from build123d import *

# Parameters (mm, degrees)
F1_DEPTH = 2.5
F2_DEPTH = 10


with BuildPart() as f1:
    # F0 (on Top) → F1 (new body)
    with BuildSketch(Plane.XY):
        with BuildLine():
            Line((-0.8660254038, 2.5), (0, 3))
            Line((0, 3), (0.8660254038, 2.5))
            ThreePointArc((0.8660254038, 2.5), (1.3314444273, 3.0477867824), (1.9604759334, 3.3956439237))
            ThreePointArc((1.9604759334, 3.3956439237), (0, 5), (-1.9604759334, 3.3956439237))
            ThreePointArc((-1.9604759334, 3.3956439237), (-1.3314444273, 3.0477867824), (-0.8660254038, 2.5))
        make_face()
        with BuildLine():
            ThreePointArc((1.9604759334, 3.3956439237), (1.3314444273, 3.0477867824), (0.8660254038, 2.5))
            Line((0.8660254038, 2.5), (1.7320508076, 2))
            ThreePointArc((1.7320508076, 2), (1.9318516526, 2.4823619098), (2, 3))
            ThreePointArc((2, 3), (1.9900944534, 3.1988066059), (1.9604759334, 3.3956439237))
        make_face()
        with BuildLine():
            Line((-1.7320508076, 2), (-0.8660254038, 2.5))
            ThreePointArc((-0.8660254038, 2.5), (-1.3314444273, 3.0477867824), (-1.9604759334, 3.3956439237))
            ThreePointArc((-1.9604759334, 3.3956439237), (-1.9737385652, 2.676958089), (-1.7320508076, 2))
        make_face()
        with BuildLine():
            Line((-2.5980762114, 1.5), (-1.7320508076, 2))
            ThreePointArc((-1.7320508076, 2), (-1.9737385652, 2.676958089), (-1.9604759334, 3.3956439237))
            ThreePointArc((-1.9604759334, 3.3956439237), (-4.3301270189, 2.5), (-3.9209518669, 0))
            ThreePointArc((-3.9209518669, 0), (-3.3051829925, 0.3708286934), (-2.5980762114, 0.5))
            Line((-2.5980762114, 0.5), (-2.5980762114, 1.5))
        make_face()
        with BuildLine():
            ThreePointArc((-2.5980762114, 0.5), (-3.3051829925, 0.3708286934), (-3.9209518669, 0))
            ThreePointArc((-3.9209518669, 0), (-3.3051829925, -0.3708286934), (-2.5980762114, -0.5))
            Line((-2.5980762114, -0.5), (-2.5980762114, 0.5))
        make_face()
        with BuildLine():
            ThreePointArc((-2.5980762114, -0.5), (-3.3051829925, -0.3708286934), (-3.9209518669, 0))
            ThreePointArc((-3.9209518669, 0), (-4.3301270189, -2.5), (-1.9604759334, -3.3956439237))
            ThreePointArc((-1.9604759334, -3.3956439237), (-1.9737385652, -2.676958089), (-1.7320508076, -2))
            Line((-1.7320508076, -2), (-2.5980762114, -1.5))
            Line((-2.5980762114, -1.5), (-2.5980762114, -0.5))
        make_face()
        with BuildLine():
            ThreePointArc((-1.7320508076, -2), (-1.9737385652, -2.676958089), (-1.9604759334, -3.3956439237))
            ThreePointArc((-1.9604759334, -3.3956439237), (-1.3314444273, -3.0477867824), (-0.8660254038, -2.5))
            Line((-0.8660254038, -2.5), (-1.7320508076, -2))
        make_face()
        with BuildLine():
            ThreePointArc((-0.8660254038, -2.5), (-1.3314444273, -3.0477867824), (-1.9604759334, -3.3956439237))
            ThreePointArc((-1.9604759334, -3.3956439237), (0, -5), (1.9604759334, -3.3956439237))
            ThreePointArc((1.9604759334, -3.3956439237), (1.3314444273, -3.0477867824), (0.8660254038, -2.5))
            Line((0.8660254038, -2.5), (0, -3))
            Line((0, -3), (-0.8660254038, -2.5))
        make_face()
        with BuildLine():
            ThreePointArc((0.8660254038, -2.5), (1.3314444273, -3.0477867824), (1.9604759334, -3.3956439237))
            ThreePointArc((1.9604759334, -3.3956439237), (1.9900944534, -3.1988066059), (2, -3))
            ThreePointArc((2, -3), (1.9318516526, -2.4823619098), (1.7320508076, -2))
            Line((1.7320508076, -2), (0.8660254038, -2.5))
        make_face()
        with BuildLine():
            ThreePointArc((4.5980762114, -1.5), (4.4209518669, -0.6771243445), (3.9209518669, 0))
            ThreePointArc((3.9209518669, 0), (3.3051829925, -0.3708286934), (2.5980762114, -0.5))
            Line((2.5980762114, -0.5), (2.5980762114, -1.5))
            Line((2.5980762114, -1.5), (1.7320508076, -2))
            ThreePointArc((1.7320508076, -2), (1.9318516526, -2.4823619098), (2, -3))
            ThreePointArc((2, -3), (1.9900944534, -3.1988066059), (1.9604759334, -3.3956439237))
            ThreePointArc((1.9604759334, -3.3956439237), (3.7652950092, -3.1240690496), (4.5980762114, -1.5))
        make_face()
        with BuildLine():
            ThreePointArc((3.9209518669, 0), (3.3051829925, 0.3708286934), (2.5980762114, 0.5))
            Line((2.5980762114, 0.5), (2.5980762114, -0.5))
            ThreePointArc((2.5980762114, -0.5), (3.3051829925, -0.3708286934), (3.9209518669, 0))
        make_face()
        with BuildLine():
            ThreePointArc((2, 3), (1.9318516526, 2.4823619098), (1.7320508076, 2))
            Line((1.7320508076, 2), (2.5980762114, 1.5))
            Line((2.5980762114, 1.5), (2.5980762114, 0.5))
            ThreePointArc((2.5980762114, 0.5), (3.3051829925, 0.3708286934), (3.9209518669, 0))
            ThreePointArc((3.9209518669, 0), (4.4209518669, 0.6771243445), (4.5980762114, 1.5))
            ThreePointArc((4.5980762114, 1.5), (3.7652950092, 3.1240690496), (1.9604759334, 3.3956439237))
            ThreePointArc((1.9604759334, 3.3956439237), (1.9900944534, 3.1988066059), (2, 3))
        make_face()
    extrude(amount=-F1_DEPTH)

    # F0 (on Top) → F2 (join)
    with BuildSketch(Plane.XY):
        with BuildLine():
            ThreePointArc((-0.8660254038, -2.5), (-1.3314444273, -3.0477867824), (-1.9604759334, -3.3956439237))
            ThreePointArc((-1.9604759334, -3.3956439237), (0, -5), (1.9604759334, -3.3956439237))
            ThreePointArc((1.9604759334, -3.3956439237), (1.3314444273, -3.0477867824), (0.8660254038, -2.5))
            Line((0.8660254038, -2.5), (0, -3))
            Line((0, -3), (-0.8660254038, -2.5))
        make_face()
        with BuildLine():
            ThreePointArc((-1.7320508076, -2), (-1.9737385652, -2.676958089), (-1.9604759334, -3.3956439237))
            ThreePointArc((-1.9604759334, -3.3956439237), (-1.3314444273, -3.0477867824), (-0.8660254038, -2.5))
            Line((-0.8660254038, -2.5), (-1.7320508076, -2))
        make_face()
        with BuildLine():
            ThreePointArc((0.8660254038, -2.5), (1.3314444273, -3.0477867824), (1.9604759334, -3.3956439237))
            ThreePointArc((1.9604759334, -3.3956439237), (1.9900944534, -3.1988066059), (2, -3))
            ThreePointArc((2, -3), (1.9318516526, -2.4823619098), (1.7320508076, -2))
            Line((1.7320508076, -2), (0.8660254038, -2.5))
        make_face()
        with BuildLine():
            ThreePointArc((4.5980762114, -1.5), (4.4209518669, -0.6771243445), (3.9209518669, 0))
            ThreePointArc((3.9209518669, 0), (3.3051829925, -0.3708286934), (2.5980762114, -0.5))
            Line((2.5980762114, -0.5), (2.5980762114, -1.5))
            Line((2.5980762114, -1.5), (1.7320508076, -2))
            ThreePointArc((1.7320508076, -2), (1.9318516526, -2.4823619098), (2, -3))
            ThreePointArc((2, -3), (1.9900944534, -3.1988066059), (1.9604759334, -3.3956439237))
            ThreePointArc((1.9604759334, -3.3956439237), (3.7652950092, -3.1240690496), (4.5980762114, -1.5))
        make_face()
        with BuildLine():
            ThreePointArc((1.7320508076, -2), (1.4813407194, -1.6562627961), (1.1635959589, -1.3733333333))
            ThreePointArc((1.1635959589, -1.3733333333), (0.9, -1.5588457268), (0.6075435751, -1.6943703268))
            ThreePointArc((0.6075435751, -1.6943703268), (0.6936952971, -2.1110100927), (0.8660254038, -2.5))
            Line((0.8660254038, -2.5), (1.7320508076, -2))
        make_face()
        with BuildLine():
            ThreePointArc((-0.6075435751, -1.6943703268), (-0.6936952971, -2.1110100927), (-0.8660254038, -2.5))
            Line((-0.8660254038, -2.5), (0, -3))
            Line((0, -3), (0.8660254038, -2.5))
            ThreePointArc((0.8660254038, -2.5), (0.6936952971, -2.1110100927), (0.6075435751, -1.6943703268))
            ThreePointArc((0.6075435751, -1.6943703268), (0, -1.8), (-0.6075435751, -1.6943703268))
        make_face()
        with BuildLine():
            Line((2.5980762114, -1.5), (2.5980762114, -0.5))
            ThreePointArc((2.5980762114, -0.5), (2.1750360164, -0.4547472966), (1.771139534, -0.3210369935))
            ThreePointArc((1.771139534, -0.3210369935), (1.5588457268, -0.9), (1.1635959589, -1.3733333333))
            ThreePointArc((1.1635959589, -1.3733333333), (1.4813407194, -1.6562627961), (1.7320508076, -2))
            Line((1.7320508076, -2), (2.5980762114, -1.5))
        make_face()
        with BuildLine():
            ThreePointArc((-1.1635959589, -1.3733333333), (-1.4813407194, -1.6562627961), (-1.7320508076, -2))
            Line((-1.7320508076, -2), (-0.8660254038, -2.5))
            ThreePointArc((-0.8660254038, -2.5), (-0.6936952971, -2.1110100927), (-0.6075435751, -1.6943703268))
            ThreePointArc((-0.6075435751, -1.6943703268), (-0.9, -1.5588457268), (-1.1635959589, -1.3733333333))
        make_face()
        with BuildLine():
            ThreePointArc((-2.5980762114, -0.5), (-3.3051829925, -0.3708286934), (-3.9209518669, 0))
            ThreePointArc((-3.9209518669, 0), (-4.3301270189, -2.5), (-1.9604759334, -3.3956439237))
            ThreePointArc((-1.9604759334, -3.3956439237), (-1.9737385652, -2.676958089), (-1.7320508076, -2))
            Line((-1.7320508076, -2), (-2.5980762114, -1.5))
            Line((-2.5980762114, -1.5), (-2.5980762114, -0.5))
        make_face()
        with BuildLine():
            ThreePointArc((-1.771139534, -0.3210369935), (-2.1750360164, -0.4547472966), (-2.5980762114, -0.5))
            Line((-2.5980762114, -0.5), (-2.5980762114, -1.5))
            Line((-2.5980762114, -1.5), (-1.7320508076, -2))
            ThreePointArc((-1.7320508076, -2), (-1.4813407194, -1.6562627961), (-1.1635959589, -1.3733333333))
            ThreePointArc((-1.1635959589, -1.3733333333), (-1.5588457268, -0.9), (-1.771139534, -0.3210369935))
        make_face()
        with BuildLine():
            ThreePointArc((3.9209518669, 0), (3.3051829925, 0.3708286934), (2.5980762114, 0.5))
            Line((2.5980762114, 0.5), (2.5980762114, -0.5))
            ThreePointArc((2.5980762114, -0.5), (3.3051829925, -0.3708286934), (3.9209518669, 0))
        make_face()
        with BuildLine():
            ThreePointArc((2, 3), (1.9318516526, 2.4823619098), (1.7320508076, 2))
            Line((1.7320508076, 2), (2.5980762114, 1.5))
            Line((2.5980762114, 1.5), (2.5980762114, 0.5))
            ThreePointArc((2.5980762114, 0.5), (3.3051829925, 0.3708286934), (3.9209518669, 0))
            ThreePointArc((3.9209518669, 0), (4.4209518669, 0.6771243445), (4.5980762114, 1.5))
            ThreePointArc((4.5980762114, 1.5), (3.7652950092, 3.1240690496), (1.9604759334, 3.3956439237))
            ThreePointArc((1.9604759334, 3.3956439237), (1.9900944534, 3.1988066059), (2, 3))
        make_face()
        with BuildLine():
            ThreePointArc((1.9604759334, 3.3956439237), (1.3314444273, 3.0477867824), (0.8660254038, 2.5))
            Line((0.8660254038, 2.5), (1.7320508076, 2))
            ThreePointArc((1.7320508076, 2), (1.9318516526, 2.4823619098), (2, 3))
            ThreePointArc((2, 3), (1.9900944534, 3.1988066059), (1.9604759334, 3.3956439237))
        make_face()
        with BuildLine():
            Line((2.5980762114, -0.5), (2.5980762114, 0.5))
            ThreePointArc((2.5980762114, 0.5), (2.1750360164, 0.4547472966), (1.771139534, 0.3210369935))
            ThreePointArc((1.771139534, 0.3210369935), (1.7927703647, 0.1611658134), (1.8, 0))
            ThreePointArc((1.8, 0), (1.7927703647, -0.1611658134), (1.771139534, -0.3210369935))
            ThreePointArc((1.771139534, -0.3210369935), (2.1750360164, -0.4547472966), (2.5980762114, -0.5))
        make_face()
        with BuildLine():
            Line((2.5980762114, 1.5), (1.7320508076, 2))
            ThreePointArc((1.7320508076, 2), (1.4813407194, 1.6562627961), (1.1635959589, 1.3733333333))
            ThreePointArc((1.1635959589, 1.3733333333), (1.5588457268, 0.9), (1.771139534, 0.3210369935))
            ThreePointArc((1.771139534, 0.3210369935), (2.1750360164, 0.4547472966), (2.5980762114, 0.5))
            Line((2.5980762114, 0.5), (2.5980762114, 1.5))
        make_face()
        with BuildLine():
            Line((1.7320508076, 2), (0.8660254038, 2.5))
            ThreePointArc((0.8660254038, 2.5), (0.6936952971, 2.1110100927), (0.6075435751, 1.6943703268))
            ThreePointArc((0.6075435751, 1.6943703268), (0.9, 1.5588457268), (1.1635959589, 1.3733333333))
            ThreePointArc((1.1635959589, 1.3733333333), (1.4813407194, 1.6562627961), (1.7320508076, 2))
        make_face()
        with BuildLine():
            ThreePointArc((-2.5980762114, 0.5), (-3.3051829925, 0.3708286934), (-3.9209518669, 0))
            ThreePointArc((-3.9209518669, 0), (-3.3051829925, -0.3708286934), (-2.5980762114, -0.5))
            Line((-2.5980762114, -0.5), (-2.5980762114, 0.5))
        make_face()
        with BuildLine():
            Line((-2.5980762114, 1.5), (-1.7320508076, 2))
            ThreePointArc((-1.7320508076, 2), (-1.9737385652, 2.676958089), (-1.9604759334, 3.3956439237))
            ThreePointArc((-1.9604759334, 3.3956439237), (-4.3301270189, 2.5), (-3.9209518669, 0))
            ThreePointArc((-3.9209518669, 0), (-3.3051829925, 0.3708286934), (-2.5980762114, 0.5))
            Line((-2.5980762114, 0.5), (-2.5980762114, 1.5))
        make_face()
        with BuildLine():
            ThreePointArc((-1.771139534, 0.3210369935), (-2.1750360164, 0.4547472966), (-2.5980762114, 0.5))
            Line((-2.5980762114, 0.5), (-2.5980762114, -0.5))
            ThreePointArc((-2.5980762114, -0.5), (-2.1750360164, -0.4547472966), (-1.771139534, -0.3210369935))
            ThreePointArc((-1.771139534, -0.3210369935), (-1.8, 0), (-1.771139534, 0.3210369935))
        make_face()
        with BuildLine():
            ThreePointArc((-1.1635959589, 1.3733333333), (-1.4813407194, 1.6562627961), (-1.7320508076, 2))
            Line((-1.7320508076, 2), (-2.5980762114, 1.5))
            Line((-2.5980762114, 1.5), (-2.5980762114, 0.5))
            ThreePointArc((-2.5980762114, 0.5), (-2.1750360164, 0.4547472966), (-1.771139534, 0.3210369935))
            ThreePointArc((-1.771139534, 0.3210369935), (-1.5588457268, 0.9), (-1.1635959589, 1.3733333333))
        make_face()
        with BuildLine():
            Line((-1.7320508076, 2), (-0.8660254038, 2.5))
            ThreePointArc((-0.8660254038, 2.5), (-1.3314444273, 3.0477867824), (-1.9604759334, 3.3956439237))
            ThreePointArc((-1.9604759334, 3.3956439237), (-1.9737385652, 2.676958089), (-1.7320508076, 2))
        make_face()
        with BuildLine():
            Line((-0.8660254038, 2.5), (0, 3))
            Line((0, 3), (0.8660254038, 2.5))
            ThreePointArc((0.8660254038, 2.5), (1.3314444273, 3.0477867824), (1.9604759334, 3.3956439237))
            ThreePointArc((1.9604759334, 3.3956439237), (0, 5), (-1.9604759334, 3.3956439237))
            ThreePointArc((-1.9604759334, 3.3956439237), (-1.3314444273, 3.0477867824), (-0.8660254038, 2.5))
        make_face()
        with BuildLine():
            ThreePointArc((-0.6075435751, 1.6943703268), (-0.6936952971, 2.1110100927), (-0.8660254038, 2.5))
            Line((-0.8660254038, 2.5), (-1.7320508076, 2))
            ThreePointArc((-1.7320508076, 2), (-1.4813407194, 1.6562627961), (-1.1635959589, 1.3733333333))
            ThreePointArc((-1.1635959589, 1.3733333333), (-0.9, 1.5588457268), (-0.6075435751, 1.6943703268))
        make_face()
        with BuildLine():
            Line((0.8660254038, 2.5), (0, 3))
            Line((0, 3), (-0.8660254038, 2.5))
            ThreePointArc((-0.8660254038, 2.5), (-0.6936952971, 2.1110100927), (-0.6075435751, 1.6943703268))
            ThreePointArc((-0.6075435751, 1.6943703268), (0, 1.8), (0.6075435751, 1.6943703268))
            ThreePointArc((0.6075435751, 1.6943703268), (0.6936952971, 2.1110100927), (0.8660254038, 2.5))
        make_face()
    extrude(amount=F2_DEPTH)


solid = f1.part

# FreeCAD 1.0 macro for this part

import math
import FreeCAD as App
import Part
import Sketcher

V = App.Vector
Q = App.Units.Quantity

doc = App.newDocument("Part")
body = doc.addObject("PartDesign::Body", "Body")

# Sketch on XY plane
sketch1 = body.newObject("Sketcher::SketchObject", "Sketch")
sketch1.AttachmentSupport = (doc.getObject("XY_Plane"), [""])
sketch1.MapMode = "FlatFace"
sketch1.addGeometry([
    Part.ArcOfCircle(Part.Circle(V(0, 3, 0), V(0, 0, 1), 2), math.radians(11), math.radians(169)),  # 0
    Part.ArcOfCircle(Part.Circle(V(-2.6, 1.5, 0), V(0, 0, 1), 2), math.radians(71), math.radians(229)),  # 1
    Part.ArcOfCircle(Part.Circle(V(-2.6, -1.5, 0), V(0, 0, 1), 2), math.radians(131), math.radians(289)),  # 2
    Part.ArcOfCircle(Part.Circle(V(0, -3, 0), V(0, 0, 1), 2), math.radians(-169), math.radians(-11)),  # 3
    Part.ArcOfCircle(Part.Circle(V(2.6, -1.5, 0), V(0, 0, 1), 2), math.radians(-109), math.radians(0)),  # 4
    Part.ArcOfCircle(Part.Circle(V(2.6, -1.5, 0), V(0, 0, 1), 2), math.radians(0), math.radians(49)),  # 5
    Part.ArcOfCircle(Part.Circle(V(2.6, 1.5, 0), V(0, 0, 1), 2), math.radians(-49), math.radians(0)),  # 6
    Part.ArcOfCircle(Part.Circle(V(2.6, 1.5, 0), V(0, 0, 1), 2), math.radians(0), math.radians(109)),  # 7
    Part.LineSegment(V(0, 3, 0), V(2.6, 1.5, 0)),  # 8
    Part.LineSegment(V(2.6, 1.5, 0), V(2.6, -1.5, 0)),  # 9
    Part.LineSegment(V(2.6, -1.5, 0), V(0, -3, 0)),  # 10
    Part.LineSegment(V(0, -3, 0), V(-2.6, -1.5, 0)),  # 11
    Part.LineSegment(V(-2.6, -1.5, 0), V(-2.6, 1.5, 0)),  # 12
    Part.LineSegment(V(-2.6, 1.5, 0), V(0, 3, 0)),  # 13
], False)
sketch1.addConstraint([
    Sketcher.Constraint("Coincident", 0, 2, 1, 1),
    Sketcher.Constraint("Coincident", 1, 2, 2, 1),
    Sketcher.Constraint("Coincident", 2, 2, 3, 1),
    Sketcher.Constraint("Coincident", 3, 2, 4, 1),
    Sketcher.Constraint("Tangent", 4, 2, 5, 1),
    Sketcher.Constraint("Coincident", 5, 2, 6, 1),
    Sketcher.Constraint("Tangent", 6, 2, 7, 1),
    Sketcher.Constraint("Coincident", 7, 2, 0, 1),
    Sketcher.Constraint("Coincident", 8, 2, 9, 1),
    Sketcher.Constraint("Coincident", 9, 2, 10, 1),
    Sketcher.Constraint("Coincident", 10, 2, 11, 1),
    Sketcher.Constraint("Coincident", 11, 2, 12, 1),
    Sketcher.Constraint("Coincident", 12, 2, 13, 1),
    Sketcher.Constraint("Coincident", 13, 2, 8, 1),
    Sketcher.Constraint("Vertical", 9),
    Sketcher.Constraint("Vertical", 12),
    Sketcher.Constraint("Coincident", 8, 2, 6, 3),
    Sketcher.Constraint("Coincident", 9, 2, 4, 3),
    Sketcher.Constraint("Coincident", 10, 2, 3, 3),
    Sketcher.Constraint("Coincident", 11, 2, 2, 3),
    Sketcher.Constraint("Coincident", 12, 2, 1, 3),
    Sketcher.Constraint("Coincident", 13, 2, 0, 3),
    Sketcher.Constraint("Equal", 0, 1),
    Sketcher.Constraint("Equal", 1, 2),
    Sketcher.Constraint("Equal", 2, 3),
    Sketcher.Constraint("Equal", 3, 4),
    Sketcher.Constraint("Equal", 4, 5),
    Sketcher.Constraint("Equal", 5, 6),
    Sketcher.Constraint("Equal", 6, 7),
    Sketcher.Constraint("Symmetric", 0, 3, 3, 3, -1, 1),
    Sketcher.Constraint("Symmetric", 1, 3, 4, 3, -1, 1),
    Sketcher.Constraint("Symmetric", 2, 2, 3, 2, -2),
    Sketcher.Constraint("PointOnObject", 5, 2, -1),
    Sketcher.Constraint("Horizontal", 5, 3, 4, 2),
    Sketcher.Constraint("Horizontal", 7, 3, 6, 2),
    Sketcher.Constraint("Radius", 0, 2.0),
    Sketcher.Constraint("DistanceY", 9, 2, 9, 1, 3.0),
    Sketcher.Constraint("Angle", 8, Q("-30 deg")),
    Sketcher.Constraint("Distance", 8, 3.0),
])
pad1 = body.newObject("PartDesign::Pad", "Pad")
pad1.Profile = sketch1
pad1.Length = 2.5
pad1.Reversed = True

# Sketch on XY plane
sketch2 = body.newObject("Sketcher::SketchObject", "Sketch001")
sketch2.AttachmentSupport = (doc.getObject("XY_Plane"), [""])
sketch2.MapMode = "FlatFace"
sketch2.addGeometry([
    Part.ArcOfCircle(Part.Circle(V(0, -3, 0), V(0, 0, 1), 2), math.radians(-169), math.radians(-11)),  # 0
    Part.ArcOfCircle(Part.Circle(V(2.6, -1.5, 0), V(0, 0, 1), 2), math.radians(-109), math.radians(0)),  # 1
    Part.ArcOfCircle(Part.Circle(V(2.6, -1.5, 0), V(0, 0, 1), 2), math.radians(0), math.radians(49)),  # 2
    Part.ArcOfCircle(Part.Circle(V(2.6, 1.5, 0), V(0, 0, 1), 2), math.radians(-49), math.radians(0)),  # 3
    Part.ArcOfCircle(Part.Circle(V(2.6, 1.5, 0), V(0, 0, 1), 2), math.radians(0), math.radians(109)),  # 4
    Part.ArcOfCircle(Part.Circle(V(0, 3, 0), V(0, 0, 1), 2), math.radians(11), math.radians(169)),  # 5
    Part.ArcOfCircle(Part.Circle(V(-2.6, 1.5, 0), V(0, 0, 1), 2), math.radians(71), math.radians(229)),  # 6
    Part.ArcOfCircle(Part.Circle(V(-2.6, -1.5, 0), V(0, 0, 1), 2), math.radians(131), math.radians(289)),  # 7
    Part.ArcOfCircle(Part.Circle(V(0, 0, 0), V(0, 0, 1), 1.8), math.radians(50), math.radians(70)),  # 8
    Part.ArcOfCircle(Part.Circle(V(0, 0, 0), V(0, 0, 1), 1.8), math.radians(10), math.radians(50)),  # 9
    Part.ArcOfCircle(Part.Circle(V(0, 0, 0), V(0, 0, 1), 1.8), math.radians(0), math.radians(10.27)),  # 10
    Part.ArcOfCircle(Part.Circle(V(0, 0, 0), V(0, 0, 1), 1.8), math.radians(-10.27), math.radians(0)),  # 11
    Part.ArcOfCircle(Part.Circle(V(0, 0, 0), V(0, 0, 1), 1.8), math.radians(-50), math.radians(-10)),  # 12
    Part.ArcOfCircle(Part.Circle(V(0, 0, 0), V(0, 0, 1), 1.8), math.radians(-70), math.radians(-50)),  # 13
    Part.ArcOfCircle(Part.Circle(V(0, 0, 0), V(0, 0, 1), 1.8), math.radians(-110), math.radians(-70)),  # 14
    Part.ArcOfCircle(Part.Circle(V(0, 0, 0), V(0, 0, 1), 1.8), math.radians(-130), math.radians(-110)),  # 15
    Part.ArcOfCircle(Part.Circle(V(0, 0, 0), V(0, 0, 1), 1.8), math.radians(-170), math.radians(-130)),  # 16
    Part.ArcOfCircle(Part.Circle(V(0, 0, 0), V(0, 0, 1), 1.8), math.radians(170), math.radians(190)),  # 17
    Part.ArcOfCircle(Part.Circle(V(0, 0, 0), V(0, 0, 1), 1.8), math.radians(130), math.radians(170)),  # 18
    Part.ArcOfCircle(Part.Circle(V(0, 0, 0), V(0, 0, 1), 1.8), math.radians(110), math.radians(130)),  # 19
    Part.ArcOfCircle(Part.Circle(V(0, 0, 0), V(0, 0, 1), 1.8), math.radians(70), math.radians(110)),  # 20
], False)
sketch2.addConstraint([
    Sketcher.Constraint("Coincident", 0, 2, 1, 1),
    Sketcher.Constraint("Tangent", 1, 2, 2, 1),
    Sketcher.Constraint("Coincident", 2, 2, 3, 1),
    Sketcher.Constraint("Tangent", 3, 2, 4, 1),
    Sketcher.Constraint("Coincident", 4, 2, 5, 1),
    Sketcher.Constraint("Coincident", 5, 2, 6, 1),
    Sketcher.Constraint("Coincident", 6, 2, 7, 1),
    Sketcher.Constraint("Coincident", 7, 2, 0, 1),
    Sketcher.Constraint("Tangent", 8, 1, 9, 2),
    Sketcher.Constraint("Tangent", 9, 1, 10, 2),
    Sketcher.Constraint("Tangent", 10, 1, 11, 2),
    Sketcher.Constraint("Tangent", 11, 1, 12, 2),
    Sketcher.Constraint("Tangent", 12, 1, 13, 2),
    Sketcher.Constraint("Tangent", 13, 1, 14, 2),
    Sketcher.Constraint("Tangent", 14, 1, 15, 2),
    Sketcher.Constraint("Tangent", 15, 1, 16, 2),
    Sketcher.Constraint("Tangent", 16, 1, 17, 2),
    Sketcher.Constraint("Tangent", 17, 1, 18, 2),
    Sketcher.Constraint("Tangent", 18, 1, 19, 2),
    Sketcher.Constraint("Tangent", 19, 1, 20, 2),
    Sketcher.Constraint("Tangent", 20, 1, 8, 2),
    Sketcher.Constraint("Coincident", 8, 3, -1, 1),
    Sketcher.Constraint("Coincident", 10, 3, -1, 1),
    Sketcher.Constraint("Coincident", 12, 3, -1, 1),
    Sketcher.Constraint("Coincident", 14, 3, -1, 1),
    Sketcher.Constraint("Coincident", 16, 3, -1, 1),
    Sketcher.Constraint("Coincident", 18, 3, -1, 1),
    Sketcher.Constraint("Equal", 0, 1),
    Sketcher.Constraint("Equal", 1, 2),
    Sketcher.Constraint("Equal", 2, 3),
    Sketcher.Constraint("Equal", 3, 4),
    Sketcher.Constraint("Equal", 4, 5),
    Sketcher.Constraint("Equal", 5, 6),
    Sketcher.Constraint("Equal", 6, 7),
    Sketcher.Constraint("Symmetric", 0, 3, 5, 3, -1, 1),
    Sketcher.Constraint("Symmetric", 1, 3, 6, 3, -1, 1),
    Sketcher.Constraint("Symmetric", 3, 3, 7, 3, -1, 1),
    Sketcher.Constraint("Symmetric", 3, 3, 6, 3, -2),
    Sketcher.Constraint("PointOnObject", 0, 3, -2),
    Sketcher.Constraint("PointOnObject", 10, 1, -1),
    Sketcher.Constraint("Horizontal", 7, 3, 1, 2),
    Sketcher.Constraint("Horizontal", 6, 3, 3, 2),
    Sketcher.Constraint("Horizontal", 13, 1, 14, 1),
    Sketcher.Constraint("Horizontal", 12, 1, 15, 1),
    Sketcher.Constraint("Horizontal", 11, 1, 16, 1),
    Sketcher.Constraint("Horizontal", 9, 1, 17, 1),
    Sketcher.Constraint("Horizontal", 8, 1, 18, 1),
    Sketcher.Constraint("Horizontal", 19, 1, 20, 1),
    Sketcher.Constraint("Vertical", 9, 1, 11, 1),
    Sketcher.Constraint("Vertical", 8, 1, 12, 1),
    Sketcher.Constraint("Vertical", 14, 1, 19, 1),
    Sketcher.Constraint("Radius", 0, 2.0),
    Sketcher.Constraint("Radius", 8, 1.8),
    Sketcher.Constraint("DistanceY", 0, 3, -1, 1, 3.0),
    Sketcher.Constraint("DistanceY", 1, 3, 3, 3, 3.0),
    Sketcher.Constraint("DistanceX", 0, 2, 1, 3, 0.6376),
    Sketcher.Constraint("DistanceX", -1, 1, 9, 1, 1.77114),
    Sketcher.Constraint("DistanceY", 13, 1, -1, 1, 1.69437),
    Sketcher.Constraint("DistanceX", 8, 1, 3, 3, 1.43448),
])
pad2 = body.newObject("PartDesign::Pad", "Pad001")
pad2.Profile = sketch2
pad2.Length = 10

doc.recompute()
